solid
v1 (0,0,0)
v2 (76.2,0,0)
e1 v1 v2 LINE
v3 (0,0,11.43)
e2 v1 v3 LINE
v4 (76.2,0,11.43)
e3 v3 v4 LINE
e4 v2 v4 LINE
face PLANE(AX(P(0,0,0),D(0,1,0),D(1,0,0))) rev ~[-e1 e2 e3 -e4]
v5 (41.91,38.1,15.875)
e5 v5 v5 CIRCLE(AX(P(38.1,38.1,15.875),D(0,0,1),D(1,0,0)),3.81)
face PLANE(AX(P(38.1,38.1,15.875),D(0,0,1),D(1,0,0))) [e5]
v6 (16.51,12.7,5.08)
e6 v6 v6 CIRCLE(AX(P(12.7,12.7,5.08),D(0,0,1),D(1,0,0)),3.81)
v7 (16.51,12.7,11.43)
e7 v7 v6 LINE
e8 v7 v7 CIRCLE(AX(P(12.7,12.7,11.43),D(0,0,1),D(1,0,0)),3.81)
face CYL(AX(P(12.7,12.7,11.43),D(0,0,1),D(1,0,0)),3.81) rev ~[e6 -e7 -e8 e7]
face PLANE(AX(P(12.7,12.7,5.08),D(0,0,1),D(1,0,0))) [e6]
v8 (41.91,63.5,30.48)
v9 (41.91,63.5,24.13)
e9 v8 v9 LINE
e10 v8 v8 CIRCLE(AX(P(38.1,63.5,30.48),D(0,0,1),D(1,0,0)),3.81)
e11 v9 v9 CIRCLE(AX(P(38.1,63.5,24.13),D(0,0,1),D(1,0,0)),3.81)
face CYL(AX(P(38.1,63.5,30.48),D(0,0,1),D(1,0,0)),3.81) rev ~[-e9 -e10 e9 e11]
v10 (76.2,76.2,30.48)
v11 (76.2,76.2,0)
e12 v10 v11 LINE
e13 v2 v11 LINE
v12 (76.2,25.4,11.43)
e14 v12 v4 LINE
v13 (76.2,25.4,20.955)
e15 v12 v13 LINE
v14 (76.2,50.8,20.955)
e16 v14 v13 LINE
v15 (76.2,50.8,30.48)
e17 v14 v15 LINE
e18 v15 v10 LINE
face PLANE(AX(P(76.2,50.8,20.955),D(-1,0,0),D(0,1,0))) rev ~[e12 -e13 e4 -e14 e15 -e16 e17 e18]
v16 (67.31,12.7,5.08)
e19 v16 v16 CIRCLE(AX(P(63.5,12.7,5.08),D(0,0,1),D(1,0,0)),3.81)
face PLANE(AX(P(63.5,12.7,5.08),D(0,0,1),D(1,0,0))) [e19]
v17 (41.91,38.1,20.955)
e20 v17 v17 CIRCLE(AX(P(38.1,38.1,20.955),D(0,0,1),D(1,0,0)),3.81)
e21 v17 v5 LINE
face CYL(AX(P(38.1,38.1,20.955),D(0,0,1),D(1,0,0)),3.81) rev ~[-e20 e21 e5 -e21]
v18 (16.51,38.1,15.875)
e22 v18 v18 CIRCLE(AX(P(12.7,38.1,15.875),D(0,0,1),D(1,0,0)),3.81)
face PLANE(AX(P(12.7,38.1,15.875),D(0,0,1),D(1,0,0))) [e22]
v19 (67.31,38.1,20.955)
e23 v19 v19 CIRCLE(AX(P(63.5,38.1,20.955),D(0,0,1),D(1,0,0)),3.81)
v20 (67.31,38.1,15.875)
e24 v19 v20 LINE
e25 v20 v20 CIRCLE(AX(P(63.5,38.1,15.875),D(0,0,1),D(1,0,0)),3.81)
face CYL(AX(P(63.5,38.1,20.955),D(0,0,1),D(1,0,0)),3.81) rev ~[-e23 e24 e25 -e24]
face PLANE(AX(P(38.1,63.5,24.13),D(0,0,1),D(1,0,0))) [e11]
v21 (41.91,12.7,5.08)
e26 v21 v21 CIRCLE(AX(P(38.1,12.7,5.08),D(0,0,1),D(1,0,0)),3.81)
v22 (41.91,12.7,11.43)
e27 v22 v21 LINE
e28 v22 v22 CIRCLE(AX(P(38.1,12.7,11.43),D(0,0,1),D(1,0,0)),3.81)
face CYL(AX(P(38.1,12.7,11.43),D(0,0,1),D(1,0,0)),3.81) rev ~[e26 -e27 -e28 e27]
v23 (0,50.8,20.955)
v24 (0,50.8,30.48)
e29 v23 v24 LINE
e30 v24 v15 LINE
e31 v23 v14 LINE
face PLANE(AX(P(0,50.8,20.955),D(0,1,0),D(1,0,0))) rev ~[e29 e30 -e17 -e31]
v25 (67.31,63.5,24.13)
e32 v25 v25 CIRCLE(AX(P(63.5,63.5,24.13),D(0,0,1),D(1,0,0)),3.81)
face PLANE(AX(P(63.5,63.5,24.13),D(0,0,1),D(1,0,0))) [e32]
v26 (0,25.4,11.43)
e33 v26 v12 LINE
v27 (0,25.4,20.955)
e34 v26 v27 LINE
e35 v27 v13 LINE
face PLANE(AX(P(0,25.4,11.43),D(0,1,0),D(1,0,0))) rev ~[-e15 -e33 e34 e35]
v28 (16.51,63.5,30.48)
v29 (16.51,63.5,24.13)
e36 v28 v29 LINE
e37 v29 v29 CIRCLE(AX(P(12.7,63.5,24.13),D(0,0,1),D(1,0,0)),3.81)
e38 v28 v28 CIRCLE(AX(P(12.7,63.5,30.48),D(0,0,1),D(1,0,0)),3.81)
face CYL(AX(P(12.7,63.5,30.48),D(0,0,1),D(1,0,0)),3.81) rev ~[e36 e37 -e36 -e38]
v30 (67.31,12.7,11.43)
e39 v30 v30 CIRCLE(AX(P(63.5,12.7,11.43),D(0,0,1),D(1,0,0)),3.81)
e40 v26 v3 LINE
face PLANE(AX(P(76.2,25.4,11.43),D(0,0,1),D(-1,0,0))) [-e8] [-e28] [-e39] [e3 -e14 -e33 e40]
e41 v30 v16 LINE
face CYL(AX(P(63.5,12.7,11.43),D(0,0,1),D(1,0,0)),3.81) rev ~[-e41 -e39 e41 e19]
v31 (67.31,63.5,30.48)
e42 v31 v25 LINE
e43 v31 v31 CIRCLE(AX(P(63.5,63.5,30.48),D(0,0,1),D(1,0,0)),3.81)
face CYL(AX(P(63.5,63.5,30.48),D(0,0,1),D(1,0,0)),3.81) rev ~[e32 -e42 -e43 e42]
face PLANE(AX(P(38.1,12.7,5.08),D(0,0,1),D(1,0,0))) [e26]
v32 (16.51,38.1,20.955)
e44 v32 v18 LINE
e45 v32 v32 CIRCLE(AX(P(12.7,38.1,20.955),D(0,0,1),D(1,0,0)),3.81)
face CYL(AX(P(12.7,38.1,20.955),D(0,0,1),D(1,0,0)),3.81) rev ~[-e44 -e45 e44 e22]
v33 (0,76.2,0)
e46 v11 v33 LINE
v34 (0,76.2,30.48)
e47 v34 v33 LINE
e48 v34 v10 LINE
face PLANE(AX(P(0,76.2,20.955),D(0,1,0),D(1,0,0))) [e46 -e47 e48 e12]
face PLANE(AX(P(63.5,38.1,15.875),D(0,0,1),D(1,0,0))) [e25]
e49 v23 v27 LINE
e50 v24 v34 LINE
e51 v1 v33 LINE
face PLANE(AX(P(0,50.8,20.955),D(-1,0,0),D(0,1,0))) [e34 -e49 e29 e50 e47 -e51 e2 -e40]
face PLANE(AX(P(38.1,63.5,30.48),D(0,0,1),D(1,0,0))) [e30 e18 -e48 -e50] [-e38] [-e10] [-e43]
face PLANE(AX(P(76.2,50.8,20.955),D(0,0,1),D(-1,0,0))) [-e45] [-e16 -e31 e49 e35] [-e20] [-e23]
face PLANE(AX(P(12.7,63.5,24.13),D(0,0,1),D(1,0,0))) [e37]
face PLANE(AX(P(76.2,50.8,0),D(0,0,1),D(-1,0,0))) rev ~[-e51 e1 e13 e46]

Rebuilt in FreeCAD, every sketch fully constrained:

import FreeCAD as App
import Part
import Sketcher
Q = App.Units.Quantity


def add_polygon(sketch, points):
    """Adds a closed chain of lines whose ends are joined by coincident constraints."""
    first, n = sketch.GeometryCount, len(points)
    for a, b in zip(points, points[1:] + points[:1]):
        sketch.addGeometry(Part.LineSegment(App.Vector(*a, 0), App.Vector(*b, 0)), False)
    for i in range(n):
        sketch.addConstraint(Sketcher.Constraint("Coincident", first + i, 2, first + (i + 1) % n, 1))

doc = App.newDocument("Part")
body = doc.addObject("PartDesign::Body", "Body")

sketch1 = body.newObject("Sketcher::SketchObject", "Sketch")
sketch1.AttachmentSupport = (doc.getObject("XY_Plane"), [""])
sketch1.MapMode = "FlatFace"
add_polygon(sketch1, [(0, 25), (0, 0), (76, 0), (76, 25)])
sketch1.addConstraint(Sketcher.Constraint("Vertical", 0))
sketch1.addConstraint(Sketcher.Constraint("Horizontal", 1))
sketch1.addConstraint(Sketcher.Constraint("Vertical", 2))
sketch1.addConstraint(Sketcher.Constraint("Horizontal", 3))
sketch1.addConstraint(Sketcher.Constraint("Coincident", 0, 2, -1, 1))
sketch1.addConstraint(Sketcher.Constraint("DistanceX", 1, 1, 1, 2, Q("3 in")))
sketch1.addConstraint(Sketcher.Constraint("DistanceY", 0, 2, 0, 1, Q("1 in")))
pad1 = body.newObject("PartDesign::Pad", "Pad")
pad1.Profile = sketch1
pad1.Length = Q("0.45 in")

sketch2 = body.newObject("Sketcher::SketchObject", "Sketch001")
sketch2.AttachmentSupport = (doc.getObject("XY_Plane"), [""])
sketch2.MapMode = "FlatFace"
sketch2.AttachmentOffset = App.Placement(App.Vector(0, 0, 0.45 * 25.4), App.Rotation())
sketch2.addGeometry(Part.Circle(App.Vector(12.7, 12.7, 0), App.Vector(0, 0, 1), 3.8), False)
sketch2.addGeometry(Part.Circle(App.Vector(38.1, 12.7, 0), App.Vector(0, 0, 1), 3.8), False)
sketch2.addGeometry(Part.Circle(App.Vector(63.5, 12.7, 0), App.Vector(0, 0, 1), 3.8), False)
sketch2.addConstraint(Sketcher.Constraint("Equal", 0, 1))
sketch2.addConstraint(Sketcher.Constraint("Equal", 1, 2))
sketch2.addConstraint(Sketcher.Constraint("Horizontal", 0, 3, 1, 3))
sketch2.addConstraint(Sketcher.Constraint("Horizontal", 1, 3, 2, 3))
sketch2.addConstraint(Sketcher.Constraint("Diameter", 0, Q("0.3 in")))
sketch2.addConstraint(Sketcher.Constraint("DistanceX", 0, 3, 1, 3, Q("1 in")))
sketch2.addConstraint(Sketcher.Constraint("DistanceX", 1, 3, 2, 3, Q("1 in")))
sketch2.addConstraint(Sketcher.Constraint("DistanceX", -1, 1, 0, 3, Q("0.5 in")))
sketch2.addConstraint(Sketcher.Constraint("DistanceY", -1, 1, 0, 3, Q("0.5 in")))
pocket1 = body.newObject("PartDesign::Pocket", "Pocket")
pocket1.Profile = sketch2
pocket1.Length = Q("0.25 in")

sketch3 = body.newObject("Sketcher::SketchObject", "Sketch002")
sketch3.AttachmentSupport = (doc.getObject("XZ_Plane"), [""])
sketch3.MapMode = "FlatFace"
sketch3.AttachmentOffset = App.Placement(App.Vector(0, 0, -1 * 25.4), App.Rotation())
add_polygon(sketch3, [(76, 11), (76, 0), (0, 0), (0, 11)])
sketch3.addConstraint(Sketcher.Constraint("Vertical", 0))
sketch3.addConstraint(Sketcher.Constraint("Horizontal", 1))
sketch3.addConstraint(Sketcher.Constraint("Vertical", 2))
sketch3.addConstraint(Sketcher.Constraint("Horizontal", 3))
sketch3.addConstraint(Sketcher.Constraint("Coincident", 1, 2, -1, 1))
sketch3.addConstraint(Sketcher.Constraint("DistanceX", 1, 2, 1, 1, Q("3 in")))
sketch3.addConstraint(Sketcher.Constraint("DistanceY", 0, 2, 0, 1, Q("0.45 in")))
pad2 = body.newObject("PartDesign::Pad", "Pad001")
pad2.Profile = sketch3
pad2.Length = Q("1 in")
pad2.Reversed = True

sketch4 = body.newObject("Sketcher::SketchObject", "Sketch003")
sketch4.AttachmentSupport = (doc.getObject("XY_Plane"), [""])
sketch4.MapMode = "FlatFace"
sketch4.AttachmentOffset = App.Placement(App.Vector(0, 0, 0.45 * 25.4), App.Rotation())
add_polygon(sketch4, [(0, 51), (0, 25), (76, 25), (76, 51)])
sketch4.addConstraint(Sketcher.Constraint("Vertical", 0))
sketch4.addConstraint(Sketcher.Constraint("Horizontal", 1))
sketch4.addConstraint(Sketcher.Constraint("Vertical", 2))
sketch4.addConstraint(Sketcher.Constraint("Horizontal", 3))
sketch4.addConstraint(Sketcher.Constraint("PointOnObject", 0, 2, -2))
sketch4.addConstraint(Sketcher.Constraint("DistanceX", 1, 1, 1, 2, Q("3 in")))
sketch4.addConstraint(Sketcher.Constraint("DistanceY", 0, 2, 0, 1, Q("1 in")))
sketch4.addConstraint(Sketcher.Constraint("DistanceY", -1, 1, 0, 2, Q("1 in")))
pad3 = body.newObject("PartDesign::Pad", "Pad002")
pad3.Profile = sketch4
pad3.Length = Q("0.375 in")

sketch5 = body.newObject("Sketcher::SketchObject", "Sketch004")
sketch5.AttachmentSupport = (doc.getObject("XZ_Plane"), [""])
sketch5.MapMode = "FlatFace"
sketch5.AttachmentOffset = App.Placement(App.Vector(0, 0, -2 * 25.4), App.Rotation())
add_polygon(sketch5, [(76, 21), (76, 0), (0, 0), (0, 21)])
sketch5.addConstraint(Sketcher.Constraint("Vertical", 0))
sketch5.addConstraint(Sketcher.Constraint("Horizontal", 1))
sketch5.addConstraint(Sketcher.Constraint("Vertical", 2))
sketch5.addConstraint(Sketcher.Constraint("Horizontal", 3))
sketch5.addConstraint(Sketcher.Constraint("Coincident", 1, 2, -1, 1))
sketch5.addConstraint(Sketcher.Constraint("DistanceX", 1, 2, 1, 1, Q("3 in")))
sketch5.addConstraint(Sketcher.Constraint("DistanceY", 0, 2, 0, 1, Q("0.825 in")))
pad4 = body.newObject("PartDesign::Pad", "Pad003")
pad4.Profile = sketch5
pad4.Length = Q("1 in")
pad4.Reversed = True

sketch6 = body.newObject("Sketcher::SketchObject", "Sketch005")
sketch6.AttachmentSupport = (doc.getObject("XY_Plane"), [""])
sketch6.MapMode = "FlatFace"
sketch6.AttachmentOffset = App.Placement(App.Vector(0, 0, 0.825 * 25.4), App.Rotation())
add_polygon(sketch6, [(0, 76), (0, 51), (76, 51), (76, 76)])
sketch6.addConstraint(Sketcher.Constraint("Vertical", 0))
sketch6.addConstraint(Sketcher.Constraint("Horizontal", 1))
sketch6.addConstraint(Sketcher.Constraint("Vertical", 2))
sketch6.addConstraint(Sketcher.Constraint("Horizontal", 3))
sketch6.addConstraint(Sketcher.Constraint("PointOnObject", 0, 2, -2))
sketch6.addConstraint(Sketcher.Constraint("DistanceX", 1, 1, 1, 2, Q("3 in")))
sketch6.addConstraint(Sketcher.Constraint("DistanceY", 0, 2, 0, 1, Q("1 in")))
sketch6.addConstraint(Sketcher.Constraint("DistanceY", -1, 1, 0, 2, Q("2 in")))
pad5 = body.newObject("PartDesign::Pad", "Pad004")
pad5.Profile = sketch6
pad5.Length = Q("0.375 in")

sketch7 = body.newObject("Sketcher::SketchObject", "Sketch006")
sketch7.AttachmentSupport = (doc.getObject("XY_Plane"), [""])
sketch7.MapMode = "FlatFace"
sketch7.AttachmentOffset = App.Placement(App.Vector(0, 0, 0.825 * 25.4), App.Rotation())
sketch7.addGeometry(Part.Circle(App.Vector(12.7, 38.1, 0), App.Vector(0, 0, 1), 3.8), False)
sketch7.addGeometry(Part.Circle(App.Vector(38.1, 38.1, 0), App.Vector(0, 0, 1), 3.8), False)
sketch7.addGeometry(Part.Circle(App.Vector(63.5, 38.1, 0), App.Vector(0, 0, 1), 3.8), False)
sketch7.addConstraint(Sketcher.Constraint("Equal", 0, 1))
sketch7.addConstraint(Sketcher.Constraint("Equal", 1, 2))
sketch7.addConstraint(Sketcher.Constraint("Horizontal", 0, 3, 1, 3))
sketch7.addConstraint(Sketcher.Constraint("Horizontal", 1, 3, 2, 3))
sketch7.addConstraint(Sketcher.Constraint("Diameter", 0, Q("0.3 in")))
sketch7.addConstraint(Sketcher.Constraint("DistanceX", 0, 3, 1, 3, Q("1 in")))
sketch7.addConstraint(Sketcher.Constraint("DistanceX", 1, 3, 2, 3, Q("1 in")))
sketch7.addConstraint(Sketcher.Constraint("DistanceX", -1, 1, 0, 3, Q("0.5 in")))
sketch7.addConstraint(Sketcher.Constraint("DistanceY", -1, 1, 0, 3, Q("1.5 in")))
pocket2 = body.newObject("PartDesign::Pocket", "Pocket001")
pocket2.Profile = sketch7
pocket2.Length = Q("0.2 in")

sketch8 = body.newObject("Sketcher::SketchObject", "Sketch007")
sketch8.AttachmentSupport = (doc.getObject("XY_Plane"), [""])
sketch8.MapMode = "FlatFace"
sketch8.AttachmentOffset = App.Placement(App.Vector(0, 0, 1.2 * 25.4), App.Rotation())
sketch8.addGeometry(Part.Circle(App.Vector(12.7, 63.5, 0), App.Vector(0, 0, 1), 3.8), False)
sketch8.addGeometry(Part.Circle(App.Vector(38.1, 63.5, 0), App.Vector(0, 0, 1), 3.8), False)
sketch8.addGeometry(Part.Circle(App.Vector(63.5, 63.5, 0), App.Vector(0, 0, 1), 3.8), False)
sketch8.addConstraint(Sketcher.Constraint("Equal", 0, 1))
sketch8.addConstraint(Sketcher.Constraint("Equal", 1, 2))
sketch8.addConstraint(Sketcher.Constraint("Horizontal", 0, 3, 1, 3))
sketch8.addConstraint(Sketcher.Constraint("Horizontal", 1, 3, 2, 3))
sketch8.addConstraint(Sketcher.Constraint("Diameter", 0, Q("0.3 in")))
sketch8.addConstraint(Sketcher.Constraint("DistanceX", 0, 3, 1, 3, Q("1 in")))
sketch8.addConstraint(Sketcher.Constraint("DistanceX", 1, 3, 2, 3, Q("1 in")))
sketch8.addConstraint(Sketcher.Constraint("DistanceX", -1, 1, 0, 3, Q("0.5 in")))
sketch8.addConstraint(Sketcher.Constraint("DistanceY", -1, 1, 0, 3, Q("2.5 in")))
pocket3 = body.newObject("PartDesign::Pocket", "Pocket002")
pocket3.Profile = sketch8
pocket3.Length = Q("0.25 in")

doc.recompute()
